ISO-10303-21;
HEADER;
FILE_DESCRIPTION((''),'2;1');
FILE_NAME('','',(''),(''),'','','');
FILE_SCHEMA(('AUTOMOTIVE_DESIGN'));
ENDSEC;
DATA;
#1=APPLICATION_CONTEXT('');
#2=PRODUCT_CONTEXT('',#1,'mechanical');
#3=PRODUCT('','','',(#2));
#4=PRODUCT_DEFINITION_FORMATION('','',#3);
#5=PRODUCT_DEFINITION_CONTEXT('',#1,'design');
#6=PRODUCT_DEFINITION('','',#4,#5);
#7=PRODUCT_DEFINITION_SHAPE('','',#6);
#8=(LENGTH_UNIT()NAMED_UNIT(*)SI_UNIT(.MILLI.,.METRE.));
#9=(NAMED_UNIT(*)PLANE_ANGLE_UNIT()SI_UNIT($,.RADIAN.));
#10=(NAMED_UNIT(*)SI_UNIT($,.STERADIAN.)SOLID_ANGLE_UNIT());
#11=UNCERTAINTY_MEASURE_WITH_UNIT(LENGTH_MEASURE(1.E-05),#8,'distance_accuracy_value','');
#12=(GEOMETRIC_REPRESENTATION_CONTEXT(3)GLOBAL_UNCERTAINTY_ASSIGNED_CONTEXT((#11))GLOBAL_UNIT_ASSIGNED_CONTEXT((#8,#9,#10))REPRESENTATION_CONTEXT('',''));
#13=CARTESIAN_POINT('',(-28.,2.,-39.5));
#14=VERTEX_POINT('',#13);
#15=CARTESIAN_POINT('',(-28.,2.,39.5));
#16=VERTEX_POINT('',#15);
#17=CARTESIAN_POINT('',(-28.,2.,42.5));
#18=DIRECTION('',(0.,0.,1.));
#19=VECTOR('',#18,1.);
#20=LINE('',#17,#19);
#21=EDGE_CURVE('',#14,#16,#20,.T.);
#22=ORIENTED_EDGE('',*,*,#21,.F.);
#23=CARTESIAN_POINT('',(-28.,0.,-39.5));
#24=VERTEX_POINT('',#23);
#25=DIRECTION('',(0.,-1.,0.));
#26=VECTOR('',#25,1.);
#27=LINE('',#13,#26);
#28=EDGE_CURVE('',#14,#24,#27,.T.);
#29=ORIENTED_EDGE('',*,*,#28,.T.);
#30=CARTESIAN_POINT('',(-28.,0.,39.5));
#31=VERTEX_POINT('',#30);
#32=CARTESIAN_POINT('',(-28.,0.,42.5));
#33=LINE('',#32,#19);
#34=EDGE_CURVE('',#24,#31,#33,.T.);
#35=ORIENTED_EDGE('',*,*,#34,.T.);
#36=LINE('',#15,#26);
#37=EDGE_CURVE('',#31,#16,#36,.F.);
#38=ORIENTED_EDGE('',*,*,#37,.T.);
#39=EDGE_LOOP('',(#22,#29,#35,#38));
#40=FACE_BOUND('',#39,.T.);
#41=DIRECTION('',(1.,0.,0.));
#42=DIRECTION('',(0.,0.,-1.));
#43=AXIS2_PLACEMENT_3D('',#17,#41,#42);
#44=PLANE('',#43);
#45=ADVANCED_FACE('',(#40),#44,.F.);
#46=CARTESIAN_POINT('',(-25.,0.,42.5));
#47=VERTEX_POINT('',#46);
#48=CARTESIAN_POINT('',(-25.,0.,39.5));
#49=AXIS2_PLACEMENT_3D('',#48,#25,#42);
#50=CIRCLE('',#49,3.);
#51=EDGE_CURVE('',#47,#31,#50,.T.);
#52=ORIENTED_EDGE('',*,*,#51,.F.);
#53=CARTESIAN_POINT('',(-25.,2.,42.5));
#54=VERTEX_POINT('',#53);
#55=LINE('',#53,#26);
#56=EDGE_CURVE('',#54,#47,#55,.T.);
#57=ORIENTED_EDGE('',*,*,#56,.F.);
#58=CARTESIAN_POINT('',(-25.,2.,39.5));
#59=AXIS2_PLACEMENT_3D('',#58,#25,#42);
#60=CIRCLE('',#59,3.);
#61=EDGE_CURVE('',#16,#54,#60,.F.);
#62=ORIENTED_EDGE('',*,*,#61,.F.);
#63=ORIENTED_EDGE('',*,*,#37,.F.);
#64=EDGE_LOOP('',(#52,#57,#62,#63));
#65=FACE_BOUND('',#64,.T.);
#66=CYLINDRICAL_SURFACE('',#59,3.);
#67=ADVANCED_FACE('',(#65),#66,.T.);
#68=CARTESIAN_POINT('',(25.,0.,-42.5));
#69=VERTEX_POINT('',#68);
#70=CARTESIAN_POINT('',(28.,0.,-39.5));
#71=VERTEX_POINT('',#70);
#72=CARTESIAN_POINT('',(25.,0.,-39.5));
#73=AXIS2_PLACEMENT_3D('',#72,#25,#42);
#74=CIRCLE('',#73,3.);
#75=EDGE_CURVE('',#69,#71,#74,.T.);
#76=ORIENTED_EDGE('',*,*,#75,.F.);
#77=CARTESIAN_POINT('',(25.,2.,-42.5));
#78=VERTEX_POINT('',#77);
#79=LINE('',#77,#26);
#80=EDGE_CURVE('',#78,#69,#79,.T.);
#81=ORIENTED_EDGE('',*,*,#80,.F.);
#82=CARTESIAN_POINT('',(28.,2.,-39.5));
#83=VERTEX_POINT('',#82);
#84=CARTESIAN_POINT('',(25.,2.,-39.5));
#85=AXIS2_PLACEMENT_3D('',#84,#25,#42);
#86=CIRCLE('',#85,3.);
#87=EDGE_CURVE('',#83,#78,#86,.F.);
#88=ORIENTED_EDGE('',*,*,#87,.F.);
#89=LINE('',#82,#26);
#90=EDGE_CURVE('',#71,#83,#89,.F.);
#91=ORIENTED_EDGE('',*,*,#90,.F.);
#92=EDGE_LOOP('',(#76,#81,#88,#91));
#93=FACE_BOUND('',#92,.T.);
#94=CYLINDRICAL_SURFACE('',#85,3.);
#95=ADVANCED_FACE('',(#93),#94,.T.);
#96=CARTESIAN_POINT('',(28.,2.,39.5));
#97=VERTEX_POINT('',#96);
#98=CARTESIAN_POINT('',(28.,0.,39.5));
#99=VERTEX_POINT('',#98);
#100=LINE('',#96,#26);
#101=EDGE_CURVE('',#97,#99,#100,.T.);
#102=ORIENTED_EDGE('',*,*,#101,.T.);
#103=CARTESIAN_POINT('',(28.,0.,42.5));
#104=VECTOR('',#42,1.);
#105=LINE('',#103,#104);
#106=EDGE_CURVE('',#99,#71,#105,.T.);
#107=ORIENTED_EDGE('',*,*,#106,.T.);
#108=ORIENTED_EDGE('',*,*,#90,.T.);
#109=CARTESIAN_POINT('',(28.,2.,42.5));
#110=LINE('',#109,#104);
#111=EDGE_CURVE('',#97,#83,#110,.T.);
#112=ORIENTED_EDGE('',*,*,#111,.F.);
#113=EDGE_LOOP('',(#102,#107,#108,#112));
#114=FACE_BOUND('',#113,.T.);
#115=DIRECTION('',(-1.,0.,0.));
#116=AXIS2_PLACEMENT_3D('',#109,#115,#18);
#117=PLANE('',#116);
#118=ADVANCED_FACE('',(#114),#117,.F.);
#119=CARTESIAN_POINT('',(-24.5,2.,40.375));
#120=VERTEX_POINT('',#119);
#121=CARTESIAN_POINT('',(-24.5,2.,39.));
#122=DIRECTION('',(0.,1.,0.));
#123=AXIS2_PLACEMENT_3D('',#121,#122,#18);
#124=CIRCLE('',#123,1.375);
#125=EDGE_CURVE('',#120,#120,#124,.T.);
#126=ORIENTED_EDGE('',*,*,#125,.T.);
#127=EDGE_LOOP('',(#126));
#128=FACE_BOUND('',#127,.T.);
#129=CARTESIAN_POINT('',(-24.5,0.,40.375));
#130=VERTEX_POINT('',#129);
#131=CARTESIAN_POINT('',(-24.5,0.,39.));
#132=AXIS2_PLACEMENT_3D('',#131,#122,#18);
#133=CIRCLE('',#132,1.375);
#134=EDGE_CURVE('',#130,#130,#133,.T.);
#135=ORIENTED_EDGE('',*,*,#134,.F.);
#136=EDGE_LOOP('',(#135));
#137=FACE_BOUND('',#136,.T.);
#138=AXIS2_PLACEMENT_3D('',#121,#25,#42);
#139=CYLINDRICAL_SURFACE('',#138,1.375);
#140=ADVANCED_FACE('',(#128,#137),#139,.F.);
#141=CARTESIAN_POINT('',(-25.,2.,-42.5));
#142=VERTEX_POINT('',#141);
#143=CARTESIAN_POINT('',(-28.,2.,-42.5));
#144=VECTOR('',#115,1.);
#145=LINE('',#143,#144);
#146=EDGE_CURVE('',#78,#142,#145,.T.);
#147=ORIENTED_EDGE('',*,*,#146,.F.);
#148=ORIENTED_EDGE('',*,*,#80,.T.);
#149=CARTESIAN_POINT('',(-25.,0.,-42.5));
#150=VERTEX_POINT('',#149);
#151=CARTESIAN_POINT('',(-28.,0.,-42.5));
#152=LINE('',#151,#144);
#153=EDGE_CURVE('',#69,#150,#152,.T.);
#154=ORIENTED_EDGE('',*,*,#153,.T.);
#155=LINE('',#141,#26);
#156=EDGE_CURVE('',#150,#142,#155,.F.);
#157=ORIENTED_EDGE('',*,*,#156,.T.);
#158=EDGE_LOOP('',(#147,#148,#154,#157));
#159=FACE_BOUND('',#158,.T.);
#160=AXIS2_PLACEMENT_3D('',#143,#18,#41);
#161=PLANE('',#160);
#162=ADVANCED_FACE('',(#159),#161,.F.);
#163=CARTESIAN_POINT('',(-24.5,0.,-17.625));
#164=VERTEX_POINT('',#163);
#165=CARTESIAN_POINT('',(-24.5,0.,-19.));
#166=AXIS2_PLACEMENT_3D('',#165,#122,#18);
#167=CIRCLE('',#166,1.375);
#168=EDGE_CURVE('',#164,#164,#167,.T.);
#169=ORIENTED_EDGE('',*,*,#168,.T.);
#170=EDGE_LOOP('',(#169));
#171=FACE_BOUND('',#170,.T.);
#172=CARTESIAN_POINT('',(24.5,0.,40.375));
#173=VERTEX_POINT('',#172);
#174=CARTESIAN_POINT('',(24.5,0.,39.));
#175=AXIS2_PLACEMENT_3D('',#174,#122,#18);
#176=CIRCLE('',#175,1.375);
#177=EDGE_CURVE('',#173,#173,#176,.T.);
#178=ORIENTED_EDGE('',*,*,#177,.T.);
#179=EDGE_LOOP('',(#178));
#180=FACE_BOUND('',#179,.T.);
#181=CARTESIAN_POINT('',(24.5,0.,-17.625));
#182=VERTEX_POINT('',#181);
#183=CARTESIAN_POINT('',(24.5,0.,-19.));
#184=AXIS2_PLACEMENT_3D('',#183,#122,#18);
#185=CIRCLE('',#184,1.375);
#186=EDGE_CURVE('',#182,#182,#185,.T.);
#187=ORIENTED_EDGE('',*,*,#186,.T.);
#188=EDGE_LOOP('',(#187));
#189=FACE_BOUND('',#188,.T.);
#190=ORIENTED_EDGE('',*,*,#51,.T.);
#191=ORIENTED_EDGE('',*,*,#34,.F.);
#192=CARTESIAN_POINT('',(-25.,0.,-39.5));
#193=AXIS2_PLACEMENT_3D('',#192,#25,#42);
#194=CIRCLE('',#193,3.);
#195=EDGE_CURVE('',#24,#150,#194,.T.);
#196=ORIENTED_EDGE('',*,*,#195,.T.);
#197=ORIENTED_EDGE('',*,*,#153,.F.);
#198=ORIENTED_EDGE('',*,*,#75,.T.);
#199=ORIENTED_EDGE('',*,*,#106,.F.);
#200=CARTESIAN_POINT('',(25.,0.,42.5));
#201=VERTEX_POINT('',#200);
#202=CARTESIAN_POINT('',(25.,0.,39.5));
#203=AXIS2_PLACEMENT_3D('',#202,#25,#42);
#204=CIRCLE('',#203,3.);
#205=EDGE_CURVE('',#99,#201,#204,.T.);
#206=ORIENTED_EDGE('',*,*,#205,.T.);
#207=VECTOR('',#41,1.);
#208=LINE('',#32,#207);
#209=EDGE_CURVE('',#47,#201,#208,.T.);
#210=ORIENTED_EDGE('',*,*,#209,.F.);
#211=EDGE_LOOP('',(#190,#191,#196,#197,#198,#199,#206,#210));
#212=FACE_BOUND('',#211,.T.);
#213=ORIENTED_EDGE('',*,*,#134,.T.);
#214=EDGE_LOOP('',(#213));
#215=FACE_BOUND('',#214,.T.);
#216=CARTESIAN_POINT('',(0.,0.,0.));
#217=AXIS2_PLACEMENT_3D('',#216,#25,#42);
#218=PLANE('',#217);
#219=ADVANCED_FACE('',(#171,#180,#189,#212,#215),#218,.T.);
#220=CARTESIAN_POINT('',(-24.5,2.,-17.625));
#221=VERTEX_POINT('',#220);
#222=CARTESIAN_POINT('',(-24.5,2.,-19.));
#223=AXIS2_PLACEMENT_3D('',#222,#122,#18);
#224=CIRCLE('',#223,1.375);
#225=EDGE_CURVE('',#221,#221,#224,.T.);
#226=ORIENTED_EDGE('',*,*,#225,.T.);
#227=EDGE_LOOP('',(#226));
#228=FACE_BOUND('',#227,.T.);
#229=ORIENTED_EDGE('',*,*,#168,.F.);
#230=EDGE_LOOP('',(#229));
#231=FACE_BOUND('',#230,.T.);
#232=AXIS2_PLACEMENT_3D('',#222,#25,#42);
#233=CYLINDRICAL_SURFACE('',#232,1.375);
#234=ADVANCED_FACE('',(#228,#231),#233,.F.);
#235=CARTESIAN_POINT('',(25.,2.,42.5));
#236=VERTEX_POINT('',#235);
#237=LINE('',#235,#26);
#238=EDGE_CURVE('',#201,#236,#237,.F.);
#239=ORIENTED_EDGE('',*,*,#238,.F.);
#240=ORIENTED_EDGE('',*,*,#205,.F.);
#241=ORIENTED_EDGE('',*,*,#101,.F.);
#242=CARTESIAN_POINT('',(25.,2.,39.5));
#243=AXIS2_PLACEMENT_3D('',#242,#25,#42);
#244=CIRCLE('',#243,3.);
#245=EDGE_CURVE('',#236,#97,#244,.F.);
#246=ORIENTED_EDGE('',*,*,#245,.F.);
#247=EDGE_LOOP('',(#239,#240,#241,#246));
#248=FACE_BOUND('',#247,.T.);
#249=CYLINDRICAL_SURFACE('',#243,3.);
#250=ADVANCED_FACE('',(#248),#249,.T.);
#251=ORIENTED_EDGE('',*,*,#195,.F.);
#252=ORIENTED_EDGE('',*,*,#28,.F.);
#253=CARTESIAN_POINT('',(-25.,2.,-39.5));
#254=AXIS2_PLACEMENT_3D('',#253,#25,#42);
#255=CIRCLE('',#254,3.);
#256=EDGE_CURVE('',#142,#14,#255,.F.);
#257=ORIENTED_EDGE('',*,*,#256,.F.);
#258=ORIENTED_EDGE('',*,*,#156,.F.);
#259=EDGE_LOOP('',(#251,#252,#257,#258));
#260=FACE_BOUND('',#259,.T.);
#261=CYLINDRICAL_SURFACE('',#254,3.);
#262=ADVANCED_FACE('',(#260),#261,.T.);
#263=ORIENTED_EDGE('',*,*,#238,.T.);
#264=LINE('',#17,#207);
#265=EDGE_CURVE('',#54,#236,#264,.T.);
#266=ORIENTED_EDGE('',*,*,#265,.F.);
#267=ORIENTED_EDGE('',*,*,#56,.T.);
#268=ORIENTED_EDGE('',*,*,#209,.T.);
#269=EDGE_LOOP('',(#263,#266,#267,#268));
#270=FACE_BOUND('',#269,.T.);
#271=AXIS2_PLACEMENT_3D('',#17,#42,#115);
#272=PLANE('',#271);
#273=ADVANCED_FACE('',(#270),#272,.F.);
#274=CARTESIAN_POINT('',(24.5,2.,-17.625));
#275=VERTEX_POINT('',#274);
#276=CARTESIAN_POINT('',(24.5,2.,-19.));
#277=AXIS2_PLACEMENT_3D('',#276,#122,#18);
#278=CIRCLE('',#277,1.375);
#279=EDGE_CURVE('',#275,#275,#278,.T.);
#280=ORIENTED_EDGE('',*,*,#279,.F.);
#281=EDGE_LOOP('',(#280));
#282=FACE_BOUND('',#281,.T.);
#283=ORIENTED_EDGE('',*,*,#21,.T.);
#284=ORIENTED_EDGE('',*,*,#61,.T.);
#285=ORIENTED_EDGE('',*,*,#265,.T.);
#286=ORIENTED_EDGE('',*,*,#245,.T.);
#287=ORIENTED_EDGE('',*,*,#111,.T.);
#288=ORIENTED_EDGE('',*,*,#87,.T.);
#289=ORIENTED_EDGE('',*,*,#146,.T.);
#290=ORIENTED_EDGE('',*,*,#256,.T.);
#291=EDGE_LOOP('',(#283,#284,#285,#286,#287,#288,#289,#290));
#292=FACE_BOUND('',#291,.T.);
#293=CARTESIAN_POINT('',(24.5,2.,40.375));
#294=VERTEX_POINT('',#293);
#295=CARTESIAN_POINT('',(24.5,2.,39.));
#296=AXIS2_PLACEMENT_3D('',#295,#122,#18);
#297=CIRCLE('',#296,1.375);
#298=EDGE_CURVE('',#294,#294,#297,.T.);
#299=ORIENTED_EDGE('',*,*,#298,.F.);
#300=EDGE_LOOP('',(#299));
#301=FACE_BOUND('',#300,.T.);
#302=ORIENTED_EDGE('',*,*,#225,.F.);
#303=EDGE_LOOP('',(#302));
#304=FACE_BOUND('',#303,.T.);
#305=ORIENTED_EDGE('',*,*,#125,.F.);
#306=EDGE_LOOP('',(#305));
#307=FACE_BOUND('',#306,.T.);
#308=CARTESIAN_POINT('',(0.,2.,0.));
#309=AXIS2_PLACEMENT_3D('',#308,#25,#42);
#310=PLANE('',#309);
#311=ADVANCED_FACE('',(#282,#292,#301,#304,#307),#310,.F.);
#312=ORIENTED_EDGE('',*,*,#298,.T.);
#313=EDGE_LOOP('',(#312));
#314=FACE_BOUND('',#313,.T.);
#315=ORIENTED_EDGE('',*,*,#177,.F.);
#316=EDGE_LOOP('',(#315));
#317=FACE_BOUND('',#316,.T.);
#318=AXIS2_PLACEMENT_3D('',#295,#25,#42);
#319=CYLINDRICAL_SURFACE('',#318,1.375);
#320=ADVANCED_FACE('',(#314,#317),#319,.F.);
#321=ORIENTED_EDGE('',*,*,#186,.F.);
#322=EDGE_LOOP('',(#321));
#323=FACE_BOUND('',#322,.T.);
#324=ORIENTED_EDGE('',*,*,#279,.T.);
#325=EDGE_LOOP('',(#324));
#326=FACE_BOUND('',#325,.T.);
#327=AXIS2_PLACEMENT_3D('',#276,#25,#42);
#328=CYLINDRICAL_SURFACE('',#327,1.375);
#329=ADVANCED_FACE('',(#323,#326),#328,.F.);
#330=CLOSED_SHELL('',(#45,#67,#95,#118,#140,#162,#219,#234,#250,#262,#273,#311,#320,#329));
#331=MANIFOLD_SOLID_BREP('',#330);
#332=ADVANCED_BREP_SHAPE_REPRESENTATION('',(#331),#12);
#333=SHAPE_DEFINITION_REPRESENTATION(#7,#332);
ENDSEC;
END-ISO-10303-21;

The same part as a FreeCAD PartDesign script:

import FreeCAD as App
import Part
import Sketcher
Q = App.Units.Quantity


def edges_at(feature, points):
    """Names of the edges that pass closest to the given points."""
    edges = feature.Shape.Edges
    near = lambda p: min(range(len(edges)), key=lambda i: edges[i].distToShape(Part.Vertex(*p))[0])
    return sorted({f"Edge{near(p) + 1}" for p in points})


def add_polygon(sketch, points):
    """Adds a closed chain of lines whose ends are joined by coincident constraints."""
    first, n = sketch.GeometryCount, len(points)
    for a, b in zip(points, points[1:] + points[:1]):
        sketch.addGeometry(Part.LineSegment(App.Vector(*a, 0), App.Vector(*b, 0)), False)
    for i in range(n):
        sketch.addConstraint(Sketcher.Constraint("Coincident", first + i, 2, first + (i + 1) % n, 1))

doc = App.newDocument("Part")
body = doc.addObject("PartDesign::Body", "Body")

# Sketch on XZ plane
sketch1 = doc.addObject("Sketcher::SketchObject", "Sketch")
body.addObject(sketch1)
sketch1.AttachmentSupport = (doc.XZ_Plane, [""])
sketch1.MapMode = "FlatFace"
add_polygon(sketch1, [(-28, -42.5), (-28, 42.5), (28, 42.5), (28, -42.5)])  # lines 0-3
sketch1.addGeometry(Part.Circle(App.Vector(-24.5, 39, 0), App.Vector(0, 0, 1), 1.4), False)  # 4
sketch1.addGeometry(Part.Circle(App.Vector(24.5, 39, 0), App.Vector(0, 0, 1), 1.4), False)  # 5
sketch1.addGeometry(Part.Circle(App.Vector(-24.5, -19, 0), App.Vector(0, 0, 1), 1.4), False)  # 6
sketch1.addGeometry(Part.Circle(App.Vector(24.5, -19, 0), App.Vector(0, 0, 1), 1.4), False)  # 7
sketch1.addConstraint(Sketcher.Constraint("Vertical", 0))
sketch1.addConstraint(Sketcher.Constraint("Horizontal", 1))
sketch1.addConstraint(Sketcher.Constraint("Vertical", 2))
sketch1.addConstraint(Sketcher.Constraint("Horizontal", 3))
sketch1.addConstraint(Sketcher.Constraint("Equal", 4, 5))
sketch1.addConstraint(Sketcher.Constraint("Equal", 5, 6))
sketch1.addConstraint(Sketcher.Constraint("Equal", 6, 7))
sketch1.addConstraint(Sketcher.Constraint("Symmetric", 0, 2, 2, 2, -1, 1))
sketch1.addConstraint(Sketcher.Constraint("Symmetric", 4, 3, 5, 3, -2))
sketch1.addConstraint(Sketcher.Constraint("Symmetric", 6, 3, 7, 3, -2))
sketch1.addConstraint(Sketcher.Constraint("Vertical", 4, 3, 6, 3))
sketch1.addConstraint(Sketcher.Constraint("Diameter", 4, Q("2.75 mm")))
sketch1.addConstraint(Sketcher.Constraint("DistanceX", 1, 1, 1, 2, Q("56 mm")))
sketch1.addConstraint(Sketcher.Constraint("DistanceY", 0, 1, 0, 2, Q("85 mm")))
sketch1.addConstraint(Sketcher.Constraint("DistanceY", -1, 1, 4, 3, Q("39 mm")))
sketch1.addConstraint(Sketcher.Constraint("DistanceY", 6, 3, -1, 1, Q("19 mm")))
sketch1.addConstraint(Sketcher.Constraint("DistanceX", 4, 3, 5, 3, Q("49 mm")))
pad1 = doc.addObject("PartDesign::Pad", "Pad")
body.addObject(pad1)
pad1.Profile = sketch1
pad1.Length = 2
pad1.Reversed = True
doc.recompute()

fillet = doc.addObject("PartDesign::Fillet", "Fillet")
body.addObject(fillet)
fillet.Base = (pad1, edges_at(pad1, [
    (28, 1, 42.5),
    (-28, 1, 42.5),
    (-28, 1, -42.5),
    (28, 1, -42.5),
]))
fillet.Radius = 3

doc.recompute()
